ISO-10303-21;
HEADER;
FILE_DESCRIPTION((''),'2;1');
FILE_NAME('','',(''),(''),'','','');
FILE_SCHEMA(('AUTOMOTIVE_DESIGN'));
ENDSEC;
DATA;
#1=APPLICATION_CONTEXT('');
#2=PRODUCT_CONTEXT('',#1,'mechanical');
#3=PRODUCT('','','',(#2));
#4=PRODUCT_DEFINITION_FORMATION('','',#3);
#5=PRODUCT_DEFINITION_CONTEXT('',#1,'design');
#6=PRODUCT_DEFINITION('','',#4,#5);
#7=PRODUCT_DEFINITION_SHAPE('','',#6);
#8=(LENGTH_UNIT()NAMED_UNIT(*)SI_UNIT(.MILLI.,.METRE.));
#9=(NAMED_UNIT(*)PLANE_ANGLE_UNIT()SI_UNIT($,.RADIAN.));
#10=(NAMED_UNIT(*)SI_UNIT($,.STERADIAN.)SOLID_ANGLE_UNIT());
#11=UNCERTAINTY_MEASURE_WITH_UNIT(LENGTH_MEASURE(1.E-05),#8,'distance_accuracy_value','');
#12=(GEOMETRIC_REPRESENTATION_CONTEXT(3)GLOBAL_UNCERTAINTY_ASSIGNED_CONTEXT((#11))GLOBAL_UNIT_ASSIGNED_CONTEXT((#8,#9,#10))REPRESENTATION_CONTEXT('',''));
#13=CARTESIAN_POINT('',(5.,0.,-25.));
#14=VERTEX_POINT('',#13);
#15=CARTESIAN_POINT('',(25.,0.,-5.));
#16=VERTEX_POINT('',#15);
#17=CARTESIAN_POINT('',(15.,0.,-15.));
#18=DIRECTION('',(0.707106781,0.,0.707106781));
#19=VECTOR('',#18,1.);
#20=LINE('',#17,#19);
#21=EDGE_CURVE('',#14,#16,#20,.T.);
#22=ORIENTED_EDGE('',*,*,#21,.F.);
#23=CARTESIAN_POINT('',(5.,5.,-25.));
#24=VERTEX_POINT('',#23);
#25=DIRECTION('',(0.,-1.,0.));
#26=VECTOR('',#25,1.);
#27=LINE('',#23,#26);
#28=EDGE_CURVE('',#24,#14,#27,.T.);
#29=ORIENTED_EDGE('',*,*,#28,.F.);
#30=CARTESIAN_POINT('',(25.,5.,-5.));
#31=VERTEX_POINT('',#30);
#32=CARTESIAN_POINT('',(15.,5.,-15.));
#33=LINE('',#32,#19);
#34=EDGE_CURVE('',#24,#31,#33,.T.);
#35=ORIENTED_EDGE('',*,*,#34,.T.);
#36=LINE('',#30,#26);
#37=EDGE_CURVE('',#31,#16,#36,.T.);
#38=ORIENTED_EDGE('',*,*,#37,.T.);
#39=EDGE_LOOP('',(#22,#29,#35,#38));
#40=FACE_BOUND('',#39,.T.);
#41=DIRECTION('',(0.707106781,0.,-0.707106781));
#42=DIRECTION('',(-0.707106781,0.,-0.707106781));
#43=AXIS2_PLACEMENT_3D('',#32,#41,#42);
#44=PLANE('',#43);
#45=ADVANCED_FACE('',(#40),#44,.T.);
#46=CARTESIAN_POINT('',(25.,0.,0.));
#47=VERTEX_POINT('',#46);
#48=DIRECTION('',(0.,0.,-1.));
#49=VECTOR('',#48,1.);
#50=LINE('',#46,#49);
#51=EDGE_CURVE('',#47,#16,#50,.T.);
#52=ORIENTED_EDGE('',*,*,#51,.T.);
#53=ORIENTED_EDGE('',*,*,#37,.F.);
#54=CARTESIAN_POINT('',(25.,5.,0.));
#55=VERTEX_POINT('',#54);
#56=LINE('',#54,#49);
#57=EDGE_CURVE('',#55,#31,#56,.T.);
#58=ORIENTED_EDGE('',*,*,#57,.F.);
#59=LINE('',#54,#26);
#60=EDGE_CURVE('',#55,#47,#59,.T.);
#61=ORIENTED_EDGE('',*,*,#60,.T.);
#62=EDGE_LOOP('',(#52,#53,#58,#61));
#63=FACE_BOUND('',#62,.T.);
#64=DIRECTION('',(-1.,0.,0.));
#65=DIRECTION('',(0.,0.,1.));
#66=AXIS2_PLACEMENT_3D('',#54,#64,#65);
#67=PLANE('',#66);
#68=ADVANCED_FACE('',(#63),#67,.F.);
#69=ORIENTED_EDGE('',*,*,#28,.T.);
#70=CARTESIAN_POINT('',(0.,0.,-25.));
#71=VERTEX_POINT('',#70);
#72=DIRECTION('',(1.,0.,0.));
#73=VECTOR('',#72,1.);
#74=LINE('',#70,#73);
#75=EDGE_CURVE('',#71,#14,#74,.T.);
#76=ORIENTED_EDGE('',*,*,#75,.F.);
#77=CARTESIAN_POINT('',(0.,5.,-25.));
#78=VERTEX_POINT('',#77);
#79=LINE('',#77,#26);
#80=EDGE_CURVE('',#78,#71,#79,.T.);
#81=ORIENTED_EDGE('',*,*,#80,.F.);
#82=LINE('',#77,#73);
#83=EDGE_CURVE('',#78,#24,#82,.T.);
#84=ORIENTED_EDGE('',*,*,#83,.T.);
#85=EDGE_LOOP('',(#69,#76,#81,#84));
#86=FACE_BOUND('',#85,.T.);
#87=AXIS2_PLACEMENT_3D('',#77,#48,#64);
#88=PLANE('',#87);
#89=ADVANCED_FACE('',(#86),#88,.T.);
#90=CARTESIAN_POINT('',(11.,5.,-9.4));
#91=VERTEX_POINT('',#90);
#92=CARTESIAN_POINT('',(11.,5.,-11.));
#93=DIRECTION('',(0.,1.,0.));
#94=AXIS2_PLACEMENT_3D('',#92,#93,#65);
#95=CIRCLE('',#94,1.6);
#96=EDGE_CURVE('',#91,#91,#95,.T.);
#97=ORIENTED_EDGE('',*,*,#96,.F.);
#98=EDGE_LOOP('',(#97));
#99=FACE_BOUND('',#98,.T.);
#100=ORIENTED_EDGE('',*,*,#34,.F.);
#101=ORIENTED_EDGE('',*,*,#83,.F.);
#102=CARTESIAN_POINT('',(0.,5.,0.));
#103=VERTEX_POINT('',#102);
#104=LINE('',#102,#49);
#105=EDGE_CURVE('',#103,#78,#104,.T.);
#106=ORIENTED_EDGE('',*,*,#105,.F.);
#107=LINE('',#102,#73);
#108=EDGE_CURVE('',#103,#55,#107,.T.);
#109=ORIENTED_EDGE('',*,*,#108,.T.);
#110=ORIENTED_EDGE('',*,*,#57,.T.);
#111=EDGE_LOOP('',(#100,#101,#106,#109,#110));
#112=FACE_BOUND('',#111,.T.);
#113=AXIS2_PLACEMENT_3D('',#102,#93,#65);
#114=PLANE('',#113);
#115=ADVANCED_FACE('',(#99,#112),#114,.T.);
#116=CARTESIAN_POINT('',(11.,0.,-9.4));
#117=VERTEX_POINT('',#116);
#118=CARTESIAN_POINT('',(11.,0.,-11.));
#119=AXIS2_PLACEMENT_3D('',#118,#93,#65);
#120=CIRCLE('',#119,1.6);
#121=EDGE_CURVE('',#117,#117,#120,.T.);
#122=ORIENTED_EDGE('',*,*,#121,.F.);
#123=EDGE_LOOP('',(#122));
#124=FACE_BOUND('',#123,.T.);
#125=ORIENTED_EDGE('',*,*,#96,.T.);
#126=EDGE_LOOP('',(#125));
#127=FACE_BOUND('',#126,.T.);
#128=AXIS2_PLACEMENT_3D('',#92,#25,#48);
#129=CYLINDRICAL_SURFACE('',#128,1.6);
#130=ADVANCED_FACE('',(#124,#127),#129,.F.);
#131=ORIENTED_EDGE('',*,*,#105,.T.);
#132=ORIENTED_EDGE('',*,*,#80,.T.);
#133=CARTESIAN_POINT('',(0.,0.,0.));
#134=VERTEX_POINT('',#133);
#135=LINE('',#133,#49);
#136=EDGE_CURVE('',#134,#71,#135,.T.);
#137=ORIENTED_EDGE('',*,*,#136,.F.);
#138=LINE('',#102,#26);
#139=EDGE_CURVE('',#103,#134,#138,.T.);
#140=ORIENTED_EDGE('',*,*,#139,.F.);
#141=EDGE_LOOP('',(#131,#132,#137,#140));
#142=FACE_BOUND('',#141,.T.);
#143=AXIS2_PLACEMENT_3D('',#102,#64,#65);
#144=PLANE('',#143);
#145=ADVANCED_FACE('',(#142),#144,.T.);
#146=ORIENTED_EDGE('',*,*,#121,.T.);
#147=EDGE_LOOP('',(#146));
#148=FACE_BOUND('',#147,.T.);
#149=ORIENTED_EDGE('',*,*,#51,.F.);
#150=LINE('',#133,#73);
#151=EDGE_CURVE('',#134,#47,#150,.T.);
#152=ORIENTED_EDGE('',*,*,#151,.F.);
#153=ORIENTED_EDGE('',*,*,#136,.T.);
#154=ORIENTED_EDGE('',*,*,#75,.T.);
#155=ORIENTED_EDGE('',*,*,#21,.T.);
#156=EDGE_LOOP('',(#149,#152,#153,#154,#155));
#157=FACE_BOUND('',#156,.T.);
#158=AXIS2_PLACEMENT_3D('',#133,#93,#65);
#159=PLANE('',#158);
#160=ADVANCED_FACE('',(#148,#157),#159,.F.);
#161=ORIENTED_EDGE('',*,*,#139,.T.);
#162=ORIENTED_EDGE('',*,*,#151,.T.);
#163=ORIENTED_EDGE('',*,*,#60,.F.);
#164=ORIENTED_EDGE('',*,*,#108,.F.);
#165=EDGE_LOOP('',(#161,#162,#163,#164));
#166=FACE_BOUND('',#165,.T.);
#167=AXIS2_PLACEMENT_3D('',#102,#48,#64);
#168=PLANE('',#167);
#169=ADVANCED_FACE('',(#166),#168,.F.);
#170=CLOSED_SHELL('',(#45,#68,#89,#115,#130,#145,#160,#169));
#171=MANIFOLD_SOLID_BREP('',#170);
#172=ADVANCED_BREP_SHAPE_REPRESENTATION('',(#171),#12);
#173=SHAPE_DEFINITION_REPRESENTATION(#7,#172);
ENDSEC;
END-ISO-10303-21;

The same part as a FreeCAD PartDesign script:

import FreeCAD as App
import Part
import Sketcher

V = App.Vector
Q = App.Units.Quantity


def add_polygon(sketch, points):
    """Adds a closed chain of lines whose ends are joined by coincident constraints."""
    first, n = sketch.GeometryCount, len(points)
    for a, b in zip(points, points[1:] + points[:1]):
        sketch.addGeometry(Part.LineSegment(App.Vector(*a, 0), App.Vector(*b, 0)), False)
    for i in range(n):
        sketch.addConstraint(Sketcher.Constraint("Coincident", first + i, 2, first + (i + 1) % n, 1))

doc = App.newDocument("Part")
body = doc.addObject("PartDesign::Body", "Body")

# Sketch on XZ plane
sketch1 = body.newObject("Sketcher::SketchObject", "Sketch")
sketch1.AttachmentSupport = (doc.getObject("XZ_Plane"), [""])
sketch1.MapMode = "FlatFace"
add_polygon(sketch1, [(25, -5), (5, -25), (0, -25), (0, 0), (25, 0)])  # lines 0-4
sketch1.addGeometry(Part.Circle(V(11, -11, 0), V(0, 0, 1), 1.6), False)  # 5
sketch1.addConstraint(Sketcher.Constraint("Horizontal", 1))
sketch1.addConstraint(Sketcher.Constraint("Vertical", 2))
sketch1.addConstraint(Sketcher.Constraint("Horizontal", 3))
sketch1.addConstraint(Sketcher.Constraint("Vertical", 4))
sketch1.addConstraint(Sketcher.Constraint("Coincident", 2, 2, -1, 1))
sketch1.addConstraint(Sketcher.Constraint("Equal", 3, 2))
sketch1.addConstraint(Sketcher.Constraint("Equal", 1, 4))
sketch1.addConstraint(Sketcher.Constraint("Diameter", 5, Q("3.2 mm")))
sketch1.addConstraint(Sketcher.Constraint("DistanceX", 1, 2, 1, 1, Q("5 mm")))
sketch1.addConstraint(Sketcher.Constraint("DistanceX", 3, 1, 3, 2, Q("25 mm")))
sketch1.addConstraint(Sketcher.Constraint("DistanceX", -1, 1, 5, 3, Q("11 mm")))
sketch1.addConstraint(Sketcher.Constraint("DistanceY", 5, 3, -1, 1, Q("11 mm")))
pad1 = body.newObject("PartDesign::Pad", "Pad")
pad1.Profile = sketch1
pad1.Length = 5
pad1.Reversed = True

doc.recompute()
